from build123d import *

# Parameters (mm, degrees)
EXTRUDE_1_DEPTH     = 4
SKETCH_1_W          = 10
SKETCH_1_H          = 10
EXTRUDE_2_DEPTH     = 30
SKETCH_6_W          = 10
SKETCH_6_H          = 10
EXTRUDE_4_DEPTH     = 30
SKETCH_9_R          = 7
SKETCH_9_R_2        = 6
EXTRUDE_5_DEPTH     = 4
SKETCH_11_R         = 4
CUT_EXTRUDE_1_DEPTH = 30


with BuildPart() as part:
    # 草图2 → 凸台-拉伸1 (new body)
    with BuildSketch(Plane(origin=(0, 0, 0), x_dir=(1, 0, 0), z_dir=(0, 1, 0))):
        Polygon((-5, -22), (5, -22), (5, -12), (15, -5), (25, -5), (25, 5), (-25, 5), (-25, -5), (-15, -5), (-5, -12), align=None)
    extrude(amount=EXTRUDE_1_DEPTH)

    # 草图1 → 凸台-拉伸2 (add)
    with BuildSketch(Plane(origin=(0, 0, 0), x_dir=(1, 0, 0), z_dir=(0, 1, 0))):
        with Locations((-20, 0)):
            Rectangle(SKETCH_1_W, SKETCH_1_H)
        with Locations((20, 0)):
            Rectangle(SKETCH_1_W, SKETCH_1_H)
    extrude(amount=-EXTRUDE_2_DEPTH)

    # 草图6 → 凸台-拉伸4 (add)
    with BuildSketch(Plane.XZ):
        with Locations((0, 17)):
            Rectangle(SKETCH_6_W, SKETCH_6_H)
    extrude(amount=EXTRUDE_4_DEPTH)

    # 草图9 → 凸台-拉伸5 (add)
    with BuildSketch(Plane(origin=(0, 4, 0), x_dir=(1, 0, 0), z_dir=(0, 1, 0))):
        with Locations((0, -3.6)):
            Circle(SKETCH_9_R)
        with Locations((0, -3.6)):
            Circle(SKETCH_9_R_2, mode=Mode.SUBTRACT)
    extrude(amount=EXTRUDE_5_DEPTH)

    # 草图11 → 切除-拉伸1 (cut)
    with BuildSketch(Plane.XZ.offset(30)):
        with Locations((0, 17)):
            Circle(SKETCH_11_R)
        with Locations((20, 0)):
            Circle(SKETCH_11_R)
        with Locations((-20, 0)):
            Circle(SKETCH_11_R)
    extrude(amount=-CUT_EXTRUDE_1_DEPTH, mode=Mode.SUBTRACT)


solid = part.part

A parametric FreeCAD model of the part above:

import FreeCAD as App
import Part
import Sketcher
Q = App.Units.Quantity

doc = App.newDocument("Part")
params = doc.addObject("Spreadsheet::Sheet", "Params")
for row, (alias, value) in enumerate([
    ("sketch1_width", "10 mm"),
    ("sketch1_width2", "50 mm"),
    ("pad1_length", "4 mm"),
    ("sketch2_width", "10 mm"),
    ("pad2_length", "30 mm"),
    ("sketch3_width", "10 mm"),
    ("pad3_length", "30 mm"),
    ("sketch4_diameter", "14 mm"),
    ("sketch4_diameter2", "12 mm"),
    ("pad4_length", "4 mm"),
    ("sketch5_diameter", "8 mm"),
    ("pocket1_length", "30 mm"),
], start=1):
    params.set(f"A{row}", alias)
    params.set(f"B{row}", "=" + value)
    params.setAlias(f"B{row}", alias)

body = doc.addObject("PartDesign::Body", "Body")

# Sketch on XZ plane
sketch1 = body.newObject("Sketcher::SketchObject", "Sketch")
sketch1.AttachmentSupport = (doc.getObject("XZ_Plane"), [""])
sketch1.MapMode = "FlatFace"
sketch1.addGeometry([
    Part.LineSegment(App.Vector(-5, 22, 0), App.Vector(5, 22, 0)),  # 0
    Part.LineSegment(App.Vector(5, 22, 0), App.Vector(5, 12, 0)),  # 1
    Part.LineSegment(App.Vector(5, 12, 0), App.Vector(15, 5, 0)),  # 2
    Part.LineSegment(App.Vector(15, 5, 0), App.Vector(25, 5, 0)),  # 3
    Part.LineSegment(App.Vector(25, 5, 0), App.Vector(25, -5, 0)),  # 4
    Part.LineSegment(App.Vector(25, -5, 0), App.Vector(-25, -5, 0)),  # 5
    Part.LineSegment(App.Vector(-25, -5, 0), App.Vector(-25, 5, 0)),  # 6
    Part.LineSegment(App.Vector(-25, 5, 0), App.Vector(-15, 5, 0)),  # 7
    Part.LineSegment(App.Vector(-15, 5, 0), App.Vector(-5, 12, 0)),  # 8
    Part.LineSegment(App.Vector(-5, 12, 0), App.Vector(-5, 22, 0)),  # 9
], False)
sketch1.addConstraint([
    Sketcher.Constraint("Coincident", 0, 2, 1, 1),
    Sketcher.Constraint("Coincident", 1, 2, 2, 1),
    Sketcher.Constraint("Coincident", 2, 2, 3, 1),
    Sketcher.Constraint("Coincident", 3, 2, 4, 1),
    Sketcher.Constraint("Coincident", 4, 2, 5, 1),
    Sketcher.Constraint("Coincident", 5, 2, 6, 1),
    Sketcher.Constraint("Coincident", 6, 2, 7, 1),
    Sketcher.Constraint("Coincident", 7, 2, 8, 1),
    Sketcher.Constraint("Coincident", 8, 2, 9, 1),
    Sketcher.Constraint("Coincident", 9, 2, 0, 1),
    Sketcher.Constraint("Horizontal", 0),
    Sketcher.Constraint("Vertical", 1),
    Sketcher.Constraint("Horizontal", 3),
    Sketcher.Constraint("Vertical", 4),
    Sketcher.Constraint("Horizontal", 5),
    Sketcher.Constraint("Vertical", 6),
    Sketcher.Constraint("Horizontal", 7),
    Sketcher.Constraint("Vertical", 9),
    Sketcher.Constraint("Symmetric", 3, 2, 5, 2, -1, 1),
    Sketcher.Constraint("Symmetric", 2, 2, 7, 2, -2),
    Sketcher.Constraint("Symmetric", 1, 2, 8, 2, -2),
    Sketcher.Constraint("Equal", 0, 3),
    Sketcher.Constraint("Equal", 7, 1),
    Sketcher.Constraint("Equal", 1, 4),
    Sketcher.Constraint("DistanceX", 0, 1, 0, 2, Q("10 mm")),
    Sketcher.Constraint("DistanceX", 5, 2, 5, 1, Q("50 mm")),
    Sketcher.Constraint("DistanceY", -1, 1, 0, 2, Q("22 mm")),
])
sketch1.setExpression("Constraints[24]", "Params.sketch1_width")
sketch1.setExpression("Constraints[25]", "Params.sketch1_width2")
pad1 = body.newObject("PartDesign::Pad", "Pad")
pad1.Profile = sketch1
pad1.setExpression("Length", "Params.pad1_length")
pad1.Reversed = True

# Sketch on XZ plane
sketch2 = body.newObject("Sketcher::SketchObject", "Sketch001")
sketch2.AttachmentSupport = (doc.getObject("XZ_Plane"), [""])
sketch2.MapMode = "FlatFace"
sketch2.addGeometry([
    Part.LineSegment(App.Vector(-25, -5, 0), App.Vector(-25, 5, 0)),  # 0
    Part.LineSegment(App.Vector(-25, 5, 0), App.Vector(-15, 5, 0)),  # 1
    Part.LineSegment(App.Vector(-15, 5, 0), App.Vector(-15, -5, 0)),  # 2
    Part.LineSegment(App.Vector(-15, -5, 0), App.Vector(-25, -5, 0)),  # 3
    Part.LineSegment(App.Vector(15, -5, 0), App.Vector(15, 5, 0)),  # 4
    Part.LineSegment(App.Vector(15, 5, 0), App.Vector(25, 5, 0)),  # 5
    Part.LineSegment(App.Vector(25, 5, 0), App.Vector(25, -5, 0)),  # 6
    Part.LineSegment(App.Vector(25, -5, 0), App.Vector(15, -5, 0)),  # 7
], False)
sketch2.addConstraint([
    Sketcher.Constraint("Coincident", 0, 2, 1, 1),
    Sketcher.Constraint("Coincident", 1, 2, 2, 1),
    Sketcher.Constraint("Coincident", 2, 2, 3, 1),
    Sketcher.Constraint("Coincident", 3, 2, 0, 1),
    Sketcher.Constraint("Coincident", 4, 2, 5, 1),
    Sketcher.Constraint("Coincident", 5, 2, 6, 1),
    Sketcher.Constraint("Coincident", 6, 2, 7, 1),
    Sketcher.Constraint("Coincident", 7, 2, 4, 1),
    Sketcher.Constraint("Vertical", 0),
    Sketcher.Constraint("Horizontal", 1),
    Sketcher.Constraint("Vertical", 2),
    Sketcher.Constraint("Horizontal", 3),
    Sketcher.Constraint("Vertical", 4),
    Sketcher.Constraint("Horizontal", 5),
    Sketcher.Constraint("Vertical", 6),
    Sketcher.Constraint("Horizontal", 7),
    Sketcher.Constraint("Symmetric", 2, 2, 4, 2, -1, 1),
    Sketcher.Constraint("Symmetric", 0, 2, 6, 2, -1, 1),
    Sketcher.Constraint("Horizontal", 1, 2, 4, 2),
    Sketcher.Constraint("Equal", 7, 0),
    Sketcher.Constraint("DistanceX", 1, 1, 1, 2, Q("10 mm")),
    Sketcher.Constraint("DistanceX", 0, 2, -1, 1, Q("25 mm")),
])
sketch2.setExpression("Constraints[20]", "Params.sketch2_width")
pad2 = body.newObject("PartDesign::Pad", "Pad001")
pad2.Profile = sketch2
pad2.setExpression("Length", "Params.pad2_length")

# Sketch on XZ plane
sketch3 = body.newObject("Sketcher::SketchObject", "Sketch002")
sketch3.AttachmentSupport = (doc.getObject("XZ_Plane"), [""])
sketch3.MapMode = "FlatFace"
sketch3.addGeometry([
    Part.LineSegment(App.Vector(-5, 22, 0), App.Vector(-5, 12, 0)),
    Part.LineSegment(App.Vector(-5, 12, 0), App.Vector(5, 12, 0)),
    Part.LineSegment(App.Vector(5, 12, 0), App.Vector(5, 22, 0)),
    Part.LineSegment(App.Vector(5, 22, 0), App.Vector(-5, 22, 0)),
], False)
sketch3.addConstraint([
    Sketcher.Constraint("Coincident", 0, 2, 1, 1),
    Sketcher.Constraint("Coincident", 1, 2, 2, 1),
    Sketcher.Constraint("Coincident", 2, 2, 3, 1),
    Sketcher.Constraint("Coincident", 3, 2, 0, 1),
    Sketcher.Constraint("Vertical", 0),
    Sketcher.Constraint("Horizontal", 1),
    Sketcher.Constraint("Vertical", 2),
    Sketcher.Constraint("Horizontal", 3),
    Sketcher.Constraint("Equal", 3, 0),
    Sketcher.Constraint("DistanceX", 1, 1, 1, 2, Q("10 mm")),
    Sketcher.Constraint("DistanceX", 0, 2, -1, 1, Q("5 mm")),
    Sketcher.Constraint("DistanceY", -1, 1, 0, 2, Q("12 mm")),
])
sketch3.setExpression("Constraints[9]", "Params.sketch3_width")
pad3 = body.newObject("PartDesign::Pad", "Pad002")
pad3.Profile = sketch3
pad3.setExpression("Length", "Params.pad3_length")

# Sketch on XZ plane
sketch4 = body.newObject("Sketcher::SketchObject", "Sketch003")
sketch4.AttachmentSupport = (doc.getObject("XZ_Plane"), [""])
sketch4.MapMode = "FlatFace"
sketch4.AttachmentOffset = App.Placement(App.Vector(0, 0, -4), App.Rotation())
sketch4.addGeometry([
    Part.Circle(App.Vector(0, 4, 0), App.Vector(0, 0, 1), 7),
    Part.Circle(App.Vector(0, 4, 0), App.Vector(0, 0, 1), 6),
], False)
sketch4.addConstraint([
    Sketcher.Constraint("Coincident", 1, 3, 0, 3),
    Sketcher.Constraint("PointOnObject", 0, 3, -2),
    Sketcher.Constraint("Diameter", 0, Q("14 mm")),
    Sketcher.Constraint("Diameter", 1, Q("12 mm")),
    Sketcher.Constraint("DistanceY", -1, 1, 0, 3, Q("3.6 mm")),
])
sketch4.setExpression("Constraints[2]", "Params.sketch4_diameter")
sketch4.setExpression("Constraints[3]", "Params.sketch4_diameter2")
pad4 = body.newObject("PartDesign::Pad", "Pad003")
pad4.Profile = sketch4
pad4.setExpression("Length", "Params.pad4_length")
pad4.Reversed = True

# Sketch on XZ plane
sketch5 = body.newObject("Sketcher::SketchObject", "Sketch004")
sketch5.AttachmentSupport = (doc.getObject("XZ_Plane"), [""])
sketch5.MapMode = "FlatFace"
sketch5.AttachmentOffset = App.Placement(App.Vector(0, 0, 30), App.Rotation())
sketch5.addGeometry([
    Part.Circle(App.Vector(0, 17, 0), App.Vector(0, 0, 1), 4),
    Part.Circle(App.Vector(20, 0, 0), App.Vector(0, 0, 1), 4),
    Part.Circle(App.Vector(-20, 0, 0), App.Vector(0, 0, 1), 4),
], False)
sketch5.addConstraint([
    Sketcher.Constraint("Equal", 0, 1),
    Sketcher.Constraint("Equal", 1, 2),
    Sketcher.Constraint("Symmetric", 1, 3, 2, 3, -1, 1),
    Sketcher.Constraint("PointOnObject", 0, 3, -2),
    Sketcher.Constraint("PointOnObject", 1, 3, -1),
    Sketcher.Constraint("Diameter", 0, Q("8 mm")),
    Sketcher.Constraint("DistanceY", -1, 1, 0, 3, Q("17 mm")),
    Sketcher.Constraint("DistanceX", -1, 1, 1, 3, Q("20 mm")),
])
sketch5.setExpression("Constraints[5]", "Params.sketch5_diameter")
pocket1 = body.newObject("PartDesign::Pocket", "Pocket")
pocket1.Profile = sketch5
pocket1.setExpression("Length", "Params.pocket1_length")

doc.recompute()
